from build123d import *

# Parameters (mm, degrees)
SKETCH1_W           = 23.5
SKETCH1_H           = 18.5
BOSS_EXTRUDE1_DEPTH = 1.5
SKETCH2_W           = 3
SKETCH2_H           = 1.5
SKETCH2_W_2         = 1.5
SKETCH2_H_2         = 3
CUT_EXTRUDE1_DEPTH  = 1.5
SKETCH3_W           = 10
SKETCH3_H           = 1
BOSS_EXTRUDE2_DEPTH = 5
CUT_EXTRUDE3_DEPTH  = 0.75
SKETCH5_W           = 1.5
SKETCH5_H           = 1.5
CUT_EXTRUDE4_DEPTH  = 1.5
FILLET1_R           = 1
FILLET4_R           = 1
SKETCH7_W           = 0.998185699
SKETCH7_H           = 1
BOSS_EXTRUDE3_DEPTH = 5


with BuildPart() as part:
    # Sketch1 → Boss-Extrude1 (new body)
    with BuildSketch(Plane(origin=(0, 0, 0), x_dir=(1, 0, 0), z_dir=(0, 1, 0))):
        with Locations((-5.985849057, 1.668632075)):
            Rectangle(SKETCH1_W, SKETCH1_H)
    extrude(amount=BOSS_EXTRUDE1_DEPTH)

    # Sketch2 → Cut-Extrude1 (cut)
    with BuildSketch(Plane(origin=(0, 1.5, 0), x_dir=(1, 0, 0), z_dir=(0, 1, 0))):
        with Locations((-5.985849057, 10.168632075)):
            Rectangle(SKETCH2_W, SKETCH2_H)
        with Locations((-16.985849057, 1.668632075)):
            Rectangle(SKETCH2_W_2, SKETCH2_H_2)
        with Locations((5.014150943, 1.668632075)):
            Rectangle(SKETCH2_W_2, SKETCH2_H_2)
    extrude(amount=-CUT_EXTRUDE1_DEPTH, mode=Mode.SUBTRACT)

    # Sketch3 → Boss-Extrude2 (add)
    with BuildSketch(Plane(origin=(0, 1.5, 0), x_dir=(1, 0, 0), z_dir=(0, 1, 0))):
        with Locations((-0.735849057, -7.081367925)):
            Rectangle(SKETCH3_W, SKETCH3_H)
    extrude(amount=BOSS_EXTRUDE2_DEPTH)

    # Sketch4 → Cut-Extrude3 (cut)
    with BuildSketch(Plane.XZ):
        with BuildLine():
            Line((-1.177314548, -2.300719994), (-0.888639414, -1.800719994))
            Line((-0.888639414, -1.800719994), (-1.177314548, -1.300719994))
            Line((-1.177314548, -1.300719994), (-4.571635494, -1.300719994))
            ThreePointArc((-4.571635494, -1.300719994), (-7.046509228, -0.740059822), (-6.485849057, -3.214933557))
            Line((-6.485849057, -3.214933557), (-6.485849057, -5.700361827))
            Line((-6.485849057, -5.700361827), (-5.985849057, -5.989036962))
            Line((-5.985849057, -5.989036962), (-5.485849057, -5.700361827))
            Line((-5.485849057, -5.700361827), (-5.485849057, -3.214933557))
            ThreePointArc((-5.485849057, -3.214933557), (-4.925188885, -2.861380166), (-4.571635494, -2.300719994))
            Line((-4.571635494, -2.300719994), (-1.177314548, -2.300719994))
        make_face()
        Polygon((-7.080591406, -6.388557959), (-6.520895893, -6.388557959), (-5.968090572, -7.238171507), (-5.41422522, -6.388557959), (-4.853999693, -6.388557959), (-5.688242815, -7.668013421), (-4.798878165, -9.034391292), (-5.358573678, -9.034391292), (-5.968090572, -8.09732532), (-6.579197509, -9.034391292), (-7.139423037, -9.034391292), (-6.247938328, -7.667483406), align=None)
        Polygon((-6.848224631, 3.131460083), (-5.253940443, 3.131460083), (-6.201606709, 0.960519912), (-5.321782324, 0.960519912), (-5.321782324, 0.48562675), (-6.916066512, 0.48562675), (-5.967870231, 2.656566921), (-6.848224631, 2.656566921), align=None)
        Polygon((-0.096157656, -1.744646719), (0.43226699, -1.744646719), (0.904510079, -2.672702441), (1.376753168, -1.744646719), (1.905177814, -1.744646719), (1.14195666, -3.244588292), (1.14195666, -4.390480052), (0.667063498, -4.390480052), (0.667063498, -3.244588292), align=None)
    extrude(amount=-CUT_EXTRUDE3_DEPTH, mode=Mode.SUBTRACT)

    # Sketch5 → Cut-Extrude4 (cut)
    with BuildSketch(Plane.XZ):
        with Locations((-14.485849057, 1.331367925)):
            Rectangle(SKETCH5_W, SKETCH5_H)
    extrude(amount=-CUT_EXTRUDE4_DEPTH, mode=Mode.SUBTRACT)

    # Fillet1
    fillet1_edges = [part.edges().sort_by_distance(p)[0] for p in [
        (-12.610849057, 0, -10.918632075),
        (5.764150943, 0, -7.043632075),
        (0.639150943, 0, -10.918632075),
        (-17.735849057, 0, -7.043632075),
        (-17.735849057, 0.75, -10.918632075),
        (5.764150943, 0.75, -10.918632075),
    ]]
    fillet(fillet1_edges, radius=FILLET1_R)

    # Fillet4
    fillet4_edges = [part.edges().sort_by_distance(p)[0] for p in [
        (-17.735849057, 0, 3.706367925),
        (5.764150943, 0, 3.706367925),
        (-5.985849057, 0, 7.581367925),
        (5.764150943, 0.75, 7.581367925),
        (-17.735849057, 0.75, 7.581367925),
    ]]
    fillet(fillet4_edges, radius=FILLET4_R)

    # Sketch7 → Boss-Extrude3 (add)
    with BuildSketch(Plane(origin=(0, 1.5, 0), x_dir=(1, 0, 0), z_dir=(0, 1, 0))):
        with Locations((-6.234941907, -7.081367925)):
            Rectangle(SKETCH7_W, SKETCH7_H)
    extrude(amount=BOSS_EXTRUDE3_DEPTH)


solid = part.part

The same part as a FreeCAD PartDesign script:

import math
import FreeCAD as App
import Part
import Sketcher
from FreeCAD import Vector
Q = App.Units.Quantity


def edges_at(feature, points):
    """Names of the edges that pass closest to the given points."""
    edges = feature.Shape.Edges
    near = lambda p: min(range(len(edges)), key=lambda i: edges[i].distToShape(Part.Vertex(*p))[0])
    return sorted({f"Edge{near(p) + 1}" for p in points})


def add_polygon(sketch, points):
    """Adds a closed chain of lines whose ends are joined by coincident constraints."""
    first, n = sketch.GeometryCount, len(points)
    for a, b in zip(points, points[1:] + points[:1]):
        sketch.addGeometry(Part.LineSegment(App.Vector(*a, 0), App.Vector(*b, 0)), False)
    for i in range(n):
        sketch.addConstraint(Sketcher.Constraint("Coincident", first + i, 2, first + (i + 1) % n, 1))

doc = App.newDocument("Part")
body = doc.addObject("PartDesign::Body", "Body")

sketch1 = body.newObject("Sketcher::SketchObject", "Sketch")
sketch1.AttachmentSupport = (doc.getObject("XZ_Plane"), [""])
sketch1.MapMode = "FlatFace"
add_polygon(sketch1, [(-18, -11), (-18, 8), (6, 8), (6, -11)])
sketch1.addConstraint(Sketcher.Constraint("Vertical", 0))
sketch1.addConstraint(Sketcher.Constraint("Horizontal", 1))
sketch1.addConstraint(Sketcher.Constraint("Vertical", 2))
sketch1.addConstraint(Sketcher.Constraint("Horizontal", 3))
sketch1.addConstraint(Sketcher.Constraint("DistanceX", 1, 1, 1, 2, Q("23.5 mm")))
sketch1.addConstraint(Sketcher.Constraint("DistanceY", 0, 1, 0, 2, Q("18.5 mm")))
sketch1.addConstraint(Sketcher.Constraint("DistanceX", 0, 2, -1, 1, Q("17.735849 mm")))
sketch1.addConstraint(Sketcher.Constraint("DistanceY", -1, 1, 0, 2, Q("7.581368 mm")))
pad1 = body.newObject("PartDesign::Pad", "Pad")
pad1.Profile = sketch1
pad1.Length = 1.5
pad1.Reversed = True

sketch2 = body.newObject("Sketcher::SketchObject", "Sketch001")
sketch2.AttachmentSupport = (doc.getObject("XZ_Plane"), [""])
sketch2.MapMode = "FlatFace"
sketch2.AttachmentOffset = App.Placement(Vector(0, 0, -1.5), App.Rotation())
add_polygon(sketch2, [(-7.5, -10.9), (-7.5, -9.4), (-4.5, -9.4), (-4.5, -10.9)])
add_polygon(sketch2, [(-17.7, -3.2), (-17.7, -0.2), (-16.2, -0.2), (-16.2, -3.2)])
add_polygon(sketch2, [(4.3, -3.2), (4.3, -0.2), (5.8, -0.2), (5.8, -3.2)])
sketch2.addConstraint(Sketcher.Constraint("Vertical", 0))
sketch2.addConstraint(Sketcher.Constraint("Horizontal", 1))
sketch2.addConstraint(Sketcher.Constraint("Vertical", 2))
sketch2.addConstraint(Sketcher.Constraint("Horizontal", 3))
sketch2.addConstraint(Sketcher.Constraint("Vertical", 4))
sketch2.addConstraint(Sketcher.Constraint("Horizontal", 5))
sketch2.addConstraint(Sketcher.Constraint("Vertical", 6))
sketch2.addConstraint(Sketcher.Constraint("Horizontal", 7))
sketch2.addConstraint(Sketcher.Constraint("Vertical", 8))
sketch2.addConstraint(Sketcher.Constraint("Horizontal", 9))
sketch2.addConstraint(Sketcher.Constraint("Vertical", 10))
sketch2.addConstraint(Sketcher.Constraint("Horizontal", 11))
sketch2.addConstraint(Sketcher.Constraint("Horizontal", 5, 2, 8, 2))
sketch2.addConstraint(Sketcher.Constraint("Horizontal", 7, 2, 10, 2))
sketch2.addConstraint(Sketcher.Constraint("Equal", 7, 9))
sketch2.addConstraint(Sketcher.Constraint("Equal", 11, 0))
sketch2.addConstraint(Sketcher.Constraint("Equal", 3, 4))
sketch2.addConstraint(Sketcher.Constraint("DistanceX", 1, 1, 1, 2, Q("3 mm")))
sketch2.addConstraint(Sketcher.Constraint("DistanceX", 5, 1, 5, 2, Q("1.5 mm")))
sketch2.addConstraint(Sketcher.Constraint("DistanceX", 5, 2, 8, 2, Q("20.5 mm")))
sketch2.addConstraint(Sketcher.Constraint("DistanceX", 4, 2, 0, 2, Q("10.25 mm")))
sketch2.addConstraint(Sketcher.Constraint("DistanceY", 0, 2, 4, 2, Q("9.25 mm")))
sketch2.addConstraint(Sketcher.Constraint("DistanceX", 0, 2, -1, 1, Q("7.485849 mm")))
sketch2.addConstraint(Sketcher.Constraint("DistanceY", 0, 2, -1, 1, Q("9.418632 mm")))
pocket1 = body.newObject("PartDesign::Pocket", "Pocket")
pocket1.Profile = sketch2
pocket1.Length = 1.5
pocket1.Reversed = True

sketch3 = body.newObject("Sketcher::SketchObject", "Sketch002")
sketch3.AttachmentSupport = (doc.getObject("XZ_Plane"), [""])
sketch3.MapMode = "FlatFace"
sketch3.AttachmentOffset = App.Placement(Vector(0, 0, -1.5), App.Rotation())
add_polygon(sketch3, [(-5.7, 6.6), (-5.7, 7.6), (4.3, 7.6), (4.3, 6.6)])
sketch3.addConstraint(Sketcher.Constraint("Vertical", 0))
sketch3.addConstraint(Sketcher.Constraint("Horizontal", 1))
sketch3.addConstraint(Sketcher.Constraint("Vertical", 2))
sketch3.addConstraint(Sketcher.Constraint("Horizontal", 3))
sketch3.addConstraint(Sketcher.Constraint("DistanceX", 1, 1, 1, 2, Q("10 mm")))
sketch3.addConstraint(Sketcher.Constraint("DistanceY", 0, 1, 0, 2, Q("1 mm")))
sketch3.addConstraint(Sketcher.Constraint("DistanceX", 0, 2, -1, 1, Q("5.735849 mm")))
sketch3.addConstraint(Sketcher.Constraint("DistanceY", -1, 1, 0, 2, Q("7.581368 mm")))
pad2 = body.newObject("PartDesign::Pad", "Pad001")
pad2.Profile = sketch3
pad2.Length = 5
pad2.Reversed = True

sketch4 = body.newObject("Sketcher::SketchObject", "Sketch003")
sketch4.AttachmentSupport = (doc.getObject("XZ_Plane"), [""])
sketch4.MapMode = "FlatFace"
sketch4.addGeometry(Part.LineSegment(Vector(-1.18, -2.3, 0), Vector(-0.89, -1.8, 0)), False)
sketch4.addGeometry(Part.LineSegment(Vector(-0.89, -1.8, 0), Vector(-1.18, -1.3, 0)), False)
sketch4.addGeometry(Part.LineSegment(Vector(-1.18, -1.3, 0), Vector(-4.57, -1.3, 0)), False)
sketch4.addGeometry(Part.ArcOfCircle(Part.Circle(Vector(-5.99, -1.8, 0), Vector(0, 0, 1), 1.5), math.radians(19), math.radians(251)), False)
sketch4.addGeometry(Part.LineSegment(Vector(-6.49, -3.21, 0), Vector(-6.49, -5.7, 0)), False)
sketch4.addGeometry(Part.LineSegment(Vector(-6.49, -5.7, 0), Vector(-5.99, -5.99, 0)), False)
sketch4.addGeometry(Part.LineSegment(Vector(-5.99, -5.99, 0), Vector(-5.49, -5.7, 0)), False)
sketch4.addGeometry(Part.LineSegment(Vector(-5.49, -5.7, 0), Vector(-5.49, -3.21, 0)), False)
sketch4.addGeometry(Part.ArcOfCircle(Part.Circle(Vector(-5.99, -1.8, 0), Vector(0, 0, 1), 1.5), math.radians(-71), math.radians(-19)), False)
sketch4.addGeometry(Part.LineSegment(Vector(-4.57, -2.3, 0), Vector(-1.18, -2.3, 0)), False)
add_polygon(sketch4, [(-6.52, -6.39), (-7.08, -6.39), (-6.25, -7.67), (-7.14, -9.03), (-6.58, -9.03), (-5.97, -8.1), (-5.36, -9.03), (-4.8, -9.03), (-5.69, -7.67), (-4.85, -6.39), (-5.41, -6.39), (-5.97, -7.24)])
add_polygon(sketch4, [(-5.25, 3.13), (-6.85, 3.13), (-6.85, 2.66), (-5.97, 2.66), (-6.92, 0.49), (-5.32, 0.49), (-5.32, 0.96), (-6.2, 0.96)])
add_polygon(sketch4, [(0.43, -1.74), (-0.1, -1.74), (0.67, -3.24), (0.67, -4.39), (1.14, -4.39), (1.14, -3.24), (1.91, -1.74), (1.38, -1.74), (0.9, -2.67)])
sketch4.addConstraint(Sketcher.Constraint("Coincident", 0, 2, 1, 1))
sketch4.addConstraint(Sketcher.Constraint("Coincident", 1, 2, 2, 1))
sketch4.addConstraint(Sketcher.Constraint("Coincident", 2, 2, 3, 1))
sketch4.addConstraint(Sketcher.Constraint("Coincident", 3, 2, 4, 1))
sketch4.addConstraint(Sketcher.Constraint("Coincident", 4, 2, 5, 1))
sketch4.addConstraint(Sketcher.Constraint("Coincident", 5, 2, 6, 1))
sketch4.addConstraint(Sketcher.Constraint("Coincident", 6, 2, 7, 1))
sketch4.addConstraint(Sketcher.Constraint("Coincident", 7, 2, 8, 1))
sketch4.addConstraint(Sketcher.Constraint("Coincident", 8, 2, 9, 1))
sketch4.addConstraint(Sketcher.Constraint("Coincident", 9, 2, 0, 1))
sketch4.addConstraint(Sketcher.Constraint("Horizontal", 2))
sketch4.addConstraint(Sketcher.Constraint("Vertical", 4))
sketch4.addConstraint(Sketcher.Constraint("Vertical", 7))
sketch4.addConstraint(Sketcher.Constraint("Horizontal", 9))
sketch4.addConstraint(Sketcher.Constraint("Horizontal", 10))
sketch4.addConstraint(Sketcher.Constraint("Horizontal", 13))
sketch4.addConstraint(Sketcher.Constraint("Horizontal", 16))
sketch4.addConstraint(Sketcher.Constraint("Horizontal", 19))
sketch4.addConstraint(Sketcher.Constraint("Horizontal", 22))
sketch4.addConstraint(Sketcher.Constraint("Vertical", 23))
sketch4.addConstraint(Sketcher.Constraint("Horizontal", 24))
sketch4.addConstraint(Sketcher.Constraint("Horizontal", 26))
sketch4.addConstraint(Sketcher.Constraint("Vertical", 27))
sketch4.addConstraint(Sketcher.Constraint("Horizontal", 28))
sketch4.addConstraint(Sketcher.Constraint("Horizontal", 30))
sketch4.addConstraint(Sketcher.Constraint("Vertical", 32))
sketch4.addConstraint(Sketcher.Constraint("Horizontal", 33))
sketch4.addConstraint(Sketcher.Constraint("Vertical", 34))
sketch4.addConstraint(Sketcher.Constraint("Horizontal", 36))
sketch4.addConstraint(Sketcher.Constraint("Coincident", 8, 3, 3, 3))
sketch4.addConstraint(Sketcher.Constraint("Equal", 3, 8))
sketch4.addConstraint(Sketcher.Constraint("Perpendicular", 0, 5))
sketch4.addConstraint(Sketcher.Constraint("Perpendicular", 1, 6))
sketch4.addConstraint(Sketcher.Constraint("Horizontal", 8, 3, 0, 2))
sketch4.addConstraint(Sketcher.Constraint("Horizontal", 4, 2, 6, 2))
sketch4.addConstraint(Sketcher.Constraint("Horizontal", 3, 2, 7, 2))
sketch4.addConstraint(Sketcher.Constraint("Horizontal", 13, 2, 15, 2))
sketch4.addConstraint(Sketcher.Constraint("Horizontal", 10, 2, 18, 2))
sketch4.addConstraint(Sketcher.Constraint("Horizontal", 31, 2, 34, 2))
sketch4.addConstraint(Sketcher.Constraint("Horizontal", 30, 2, 35, 2))
sketch4.addConstraint(Sketcher.Constraint("Vertical", 8, 3, 5, 2))
sketch4.addConstraint(Sketcher.Constraint("Vertical", 2, 2, 8, 2))
sketch4.addConstraint(Sketcher.Constraint("Vertical", 14, 2, 20, 2))
sketch4.addConstraint(Sketcher.Constraint("Equal", 10, 16))
sketch4.addConstraint(Sketcher.Constraint("Equal", 13, 19))
sketch4.addConstraint(Sketcher.Constraint("Equal", 22, 26))
sketch4.addConstraint(Sketcher.Constraint("Equal", 30, 36))
sketch4.addConstraint(Sketcher.Constraint("Equal", 33, 23))
sketch4.addConstraint(Sketcher.Constraint("Equal", 23, 27))
sketch4.addConstraint(Sketcher.Constraint("Equal", 1, 5))
sketch4.addConstraint(Sketcher.Constraint("Equal", 31, 35))
sketch4.addConstraint(Sketcher.Constraint("Equal", 37, 38))
sketch4.addConstraint(Sketcher.Constraint("Radius", 3, Q("1.5 mm")))
sketch4.addConstraint(Sketcher.Constraint("Angle", 0, Q("60 deg")))
sketch4.addConstraint(Sketcher.Constraint("DistanceX", 4, 2, 6, 2, Q("1 mm")))
sketch4.addConstraint(Sketcher.Constraint("DistanceX", 18, 2, -1, 1, Q("4.854 mm")))
sketch4.addConstraint(Sketcher.Constraint("DistanceX", 2, 2, 2, 1, Q("3.394321 mm")))
sketch4.addConstraint(Sketcher.Constraint("DistanceY", 4, 2, 4, 1, Q("2.485428 mm")))
sketch4.addConstraint(Sketcher.Constraint("DistanceY", 32, 2, 32, 1, Q("1.145892 mm")))
sketch4.addConstraint(Sketcher.Constraint("DistanceX", 10, 2, 14, 2, Q("1.112501 mm")))
sketch4.addConstraint(Sketcher.Constraint("DistanceX", 8, 2, 31, 2, Q("5.238699 mm")))
sketch4.addConstraint(Sketcher.Constraint("Distance", 25, Q("2.368978 mm")))
sketch4.addConstraint(Sketcher.Constraint("DistanceX", 10, 2, 10, 1, Q("0.559696 mm")))
sketch4.addConstraint(Sketcher.Constraint("DistanceX", 13, 1, 13, 2, Q("0.560226 mm")))
sketch4.addConstraint(Sketcher.Constraint("DistanceX", 22, 2, 22, 1, Q("1.594284 mm")))
sketch4.addConstraint(Sketcher.Constraint("DistanceX", 24, 1, 24, 2, Q("0.880354 mm")))
sketch4.addConstraint(Sketcher.Constraint("DistanceX", 28, 2, 28, 1, Q("0.879824 mm")))
sketch4.addConstraint(Sketcher.Constraint("DistanceX", 30, 2, 30, 1, Q("0.528425 mm")))
sketch4.addConstraint(Sketcher.Constraint("DistanceX", 33, 1, 33, 2, Q("0.474893 mm")))
sketch4.addConstraint(Sketcher.Constraint("DistanceX", 3, 3, -1, 1, Q("5.985849 mm")))
sketch4.addConstraint(Sketcher.Constraint("DistanceY", 3, 3, -1, 1, Q("1.80072 mm")))
sketch4.addConstraint(Sketcher.Constraint("DistanceX", 10, 2, -1, 1, Q("7.080591 mm")))
sketch4.addConstraint(Sketcher.Constraint("DistanceX", 11, 2, -1, 1, Q("6.247938 mm")))
sketch4.addConstraint(Sketcher.Constraint("DistanceY", 12, 2, -1, 1, Q("9.034391 mm")))
sketch4.addConstraint(Sketcher.Constraint("DistanceX", 16, 2, -1, 1, Q("4.798878 mm")))
sketch4.addConstraint(Sketcher.Constraint("DistanceY", 20, 2, -1, 1, Q("7.238172 mm")))
sketch4.addConstraint(Sketcher.Constraint("DistanceY", -1, 1, 22, 2, Q("3.13146 mm")))
sketch4.addConstraint(Sketcher.Constraint("DistanceX", 24, 2, -1, 1, Q("5.96787 mm")))
sketch4.addConstraint(Sketcher.Constraint("DistanceY", -1, 1, 27, 2, Q("0.96052 mm")))
sketch4.addConstraint(Sketcher.Constraint("DistanceY", 31, 2, -1, 1, Q("3.244588 mm")))
sketch4.addConstraint(Sketcher.Constraint("DistanceY", 10, 2, 5, 2, Q("0.399521 mm")))
sketch4.addConstraint(Sketcher.Constraint("DistanceY", 11, 2, 4, 2, Q("1.967122 mm")))
sketch4.addConstraint(Sketcher.Constraint("DistanceX", 12, 2, 10, 2, Q("0.058832 mm")))
sketch4.addConstraint(Sketcher.Constraint("DistanceY", 14, 2, 11, 2, Q("0.429842 mm")))
sketch4.addConstraint(Sketcher.Constraint("DistanceY", 14, 2, 17, 2, Q("0.429312 mm")))
sketch4.addConstraint(Sketcher.Constraint("DistanceX", 17, 2, 15, 2, Q("0.329669 mm")))
sketch4.addConstraint(Sketcher.Constraint("DistanceX", 0, 2, 30, 2, Q("0.792482 mm")))
sketch4.addConstraint(Sketcher.Constraint("DistanceY", 31, 2, 30, 2, Q("1.499942 mm")))
sketch4.addConstraint(Sketcher.Constraint("Distance", 37, Q("1.041298 mm")))
pocket2 = body.newObject("PartDesign::Pocket", "Pocket001")
pocket2.Profile = sketch4
pocket2.Length = 0.75

sketch5 = body.newObject("Sketcher::SketchObject", "Sketch004")
sketch5.AttachmentSupport = (doc.getObject("XZ_Plane"), [""])
sketch5.MapMode = "FlatFace"
add_polygon(sketch5, [(-15.2, 2.1), (-15.2, 0.6), (-13.7, 0.6), (-13.7, 2.1)])
sketch5.addConstraint(Sketcher.Constraint("Vertical", 0))
sketch5.addConstraint(Sketcher.Constraint("Horizontal", 1))
sketch5.addConstraint(Sketcher.Constraint("Vertical", 2))
sketch5.addConstraint(Sketcher.Constraint("Horizontal", 3))
sketch5.addConstraint(Sketcher.Constraint("Equal", 3, 0))
sketch5.addConstraint(Sketcher.Constraint("DistanceX", 1, 1, 1, 2, Q("1.5 mm")))
sketch5.addConstraint(Sketcher.Constraint("DistanceX", 0, 2, -1, 1, Q("15.235849 mm")))
sketch5.addConstraint(Sketcher.Constraint("DistanceY", -1, 1, 0, 2, Q("0.581368 mm")))
pocket3 = body.newObject("PartDesign::Pocket", "Pocket002")
pocket3.Profile = sketch5
pocket3.Length = 1.5
doc.recompute()

fillet = body.newObject("PartDesign::Fillet", "Fillet")
fillet.Base = (pocket3, edges_at(pocket3, [
    (-12.611, 0, -10.919),
    (5.764, 0, -7.044),
    (0.639, 0, -10.919),
    (-17.736, 0, -7.044),
    (-17.736, 0.75, -10.919),
    (5.764, 0.75, -10.919),
]))
fillet.Radius = 1
doc.recompute()

fillet2 = body.newObject("PartDesign::Fillet", "Fillet001")
fillet2.Base = (fillet, edges_at(fillet, [
    (-17.736, 0, 3.706),
    (5.764, 0, 3.706),
    (-5.986, 0, 7.581),
    (5.764, 0.75, 7.581),
    (-17.736, 0.75, 7.581),
]))
fillet2.Radius = 1

sketch6 = body.newObject("Sketcher::SketchObject", "Sketch005")
sketch6.AttachmentSupport = (doc.getObject("XZ_Plane"), [""])
sketch6.MapMode = "FlatFace"
sketch6.AttachmentOffset = App.Placement(Vector(0, 0, -1.5), App.Rotation())
add_polygon(sketch6, [(-6.7, 6.6), (-6.7, 7.6), (-5.7, 7.6), (-5.7, 6.6)])
sketch6.addConstraint(Sketcher.Constraint("Vertical", 0))
sketch6.addConstraint(Sketcher.Constraint("Horizontal", 1))
sketch6.addConstraint(Sketcher.Constraint("Vertical", 2))
sketch6.addConstraint(Sketcher.Constraint("Horizontal", 3))
sketch6.addConstraint(Sketcher.Constraint("DistanceY", 0, 1, 0, 2, Q("1 mm")))
sketch6.addConstraint(Sketcher.Constraint("DistanceX", 1, 1, 1, 2, Q("0.998186 mm")))
sketch6.addConstraint(Sketcher.Constraint("DistanceX", 1, 2, -1, 1, Q("5.735849 mm")))
sketch6.addConstraint(Sketcher.Constraint("DistanceY", -1, 1, 0, 2, Q("7.581368 mm")))
pad3 = body.newObject("PartDesign::Pad", "Pad002")
pad3.Profile = sketch6
pad3.Length = 5
pad3.Reversed = True

doc.recompute()
